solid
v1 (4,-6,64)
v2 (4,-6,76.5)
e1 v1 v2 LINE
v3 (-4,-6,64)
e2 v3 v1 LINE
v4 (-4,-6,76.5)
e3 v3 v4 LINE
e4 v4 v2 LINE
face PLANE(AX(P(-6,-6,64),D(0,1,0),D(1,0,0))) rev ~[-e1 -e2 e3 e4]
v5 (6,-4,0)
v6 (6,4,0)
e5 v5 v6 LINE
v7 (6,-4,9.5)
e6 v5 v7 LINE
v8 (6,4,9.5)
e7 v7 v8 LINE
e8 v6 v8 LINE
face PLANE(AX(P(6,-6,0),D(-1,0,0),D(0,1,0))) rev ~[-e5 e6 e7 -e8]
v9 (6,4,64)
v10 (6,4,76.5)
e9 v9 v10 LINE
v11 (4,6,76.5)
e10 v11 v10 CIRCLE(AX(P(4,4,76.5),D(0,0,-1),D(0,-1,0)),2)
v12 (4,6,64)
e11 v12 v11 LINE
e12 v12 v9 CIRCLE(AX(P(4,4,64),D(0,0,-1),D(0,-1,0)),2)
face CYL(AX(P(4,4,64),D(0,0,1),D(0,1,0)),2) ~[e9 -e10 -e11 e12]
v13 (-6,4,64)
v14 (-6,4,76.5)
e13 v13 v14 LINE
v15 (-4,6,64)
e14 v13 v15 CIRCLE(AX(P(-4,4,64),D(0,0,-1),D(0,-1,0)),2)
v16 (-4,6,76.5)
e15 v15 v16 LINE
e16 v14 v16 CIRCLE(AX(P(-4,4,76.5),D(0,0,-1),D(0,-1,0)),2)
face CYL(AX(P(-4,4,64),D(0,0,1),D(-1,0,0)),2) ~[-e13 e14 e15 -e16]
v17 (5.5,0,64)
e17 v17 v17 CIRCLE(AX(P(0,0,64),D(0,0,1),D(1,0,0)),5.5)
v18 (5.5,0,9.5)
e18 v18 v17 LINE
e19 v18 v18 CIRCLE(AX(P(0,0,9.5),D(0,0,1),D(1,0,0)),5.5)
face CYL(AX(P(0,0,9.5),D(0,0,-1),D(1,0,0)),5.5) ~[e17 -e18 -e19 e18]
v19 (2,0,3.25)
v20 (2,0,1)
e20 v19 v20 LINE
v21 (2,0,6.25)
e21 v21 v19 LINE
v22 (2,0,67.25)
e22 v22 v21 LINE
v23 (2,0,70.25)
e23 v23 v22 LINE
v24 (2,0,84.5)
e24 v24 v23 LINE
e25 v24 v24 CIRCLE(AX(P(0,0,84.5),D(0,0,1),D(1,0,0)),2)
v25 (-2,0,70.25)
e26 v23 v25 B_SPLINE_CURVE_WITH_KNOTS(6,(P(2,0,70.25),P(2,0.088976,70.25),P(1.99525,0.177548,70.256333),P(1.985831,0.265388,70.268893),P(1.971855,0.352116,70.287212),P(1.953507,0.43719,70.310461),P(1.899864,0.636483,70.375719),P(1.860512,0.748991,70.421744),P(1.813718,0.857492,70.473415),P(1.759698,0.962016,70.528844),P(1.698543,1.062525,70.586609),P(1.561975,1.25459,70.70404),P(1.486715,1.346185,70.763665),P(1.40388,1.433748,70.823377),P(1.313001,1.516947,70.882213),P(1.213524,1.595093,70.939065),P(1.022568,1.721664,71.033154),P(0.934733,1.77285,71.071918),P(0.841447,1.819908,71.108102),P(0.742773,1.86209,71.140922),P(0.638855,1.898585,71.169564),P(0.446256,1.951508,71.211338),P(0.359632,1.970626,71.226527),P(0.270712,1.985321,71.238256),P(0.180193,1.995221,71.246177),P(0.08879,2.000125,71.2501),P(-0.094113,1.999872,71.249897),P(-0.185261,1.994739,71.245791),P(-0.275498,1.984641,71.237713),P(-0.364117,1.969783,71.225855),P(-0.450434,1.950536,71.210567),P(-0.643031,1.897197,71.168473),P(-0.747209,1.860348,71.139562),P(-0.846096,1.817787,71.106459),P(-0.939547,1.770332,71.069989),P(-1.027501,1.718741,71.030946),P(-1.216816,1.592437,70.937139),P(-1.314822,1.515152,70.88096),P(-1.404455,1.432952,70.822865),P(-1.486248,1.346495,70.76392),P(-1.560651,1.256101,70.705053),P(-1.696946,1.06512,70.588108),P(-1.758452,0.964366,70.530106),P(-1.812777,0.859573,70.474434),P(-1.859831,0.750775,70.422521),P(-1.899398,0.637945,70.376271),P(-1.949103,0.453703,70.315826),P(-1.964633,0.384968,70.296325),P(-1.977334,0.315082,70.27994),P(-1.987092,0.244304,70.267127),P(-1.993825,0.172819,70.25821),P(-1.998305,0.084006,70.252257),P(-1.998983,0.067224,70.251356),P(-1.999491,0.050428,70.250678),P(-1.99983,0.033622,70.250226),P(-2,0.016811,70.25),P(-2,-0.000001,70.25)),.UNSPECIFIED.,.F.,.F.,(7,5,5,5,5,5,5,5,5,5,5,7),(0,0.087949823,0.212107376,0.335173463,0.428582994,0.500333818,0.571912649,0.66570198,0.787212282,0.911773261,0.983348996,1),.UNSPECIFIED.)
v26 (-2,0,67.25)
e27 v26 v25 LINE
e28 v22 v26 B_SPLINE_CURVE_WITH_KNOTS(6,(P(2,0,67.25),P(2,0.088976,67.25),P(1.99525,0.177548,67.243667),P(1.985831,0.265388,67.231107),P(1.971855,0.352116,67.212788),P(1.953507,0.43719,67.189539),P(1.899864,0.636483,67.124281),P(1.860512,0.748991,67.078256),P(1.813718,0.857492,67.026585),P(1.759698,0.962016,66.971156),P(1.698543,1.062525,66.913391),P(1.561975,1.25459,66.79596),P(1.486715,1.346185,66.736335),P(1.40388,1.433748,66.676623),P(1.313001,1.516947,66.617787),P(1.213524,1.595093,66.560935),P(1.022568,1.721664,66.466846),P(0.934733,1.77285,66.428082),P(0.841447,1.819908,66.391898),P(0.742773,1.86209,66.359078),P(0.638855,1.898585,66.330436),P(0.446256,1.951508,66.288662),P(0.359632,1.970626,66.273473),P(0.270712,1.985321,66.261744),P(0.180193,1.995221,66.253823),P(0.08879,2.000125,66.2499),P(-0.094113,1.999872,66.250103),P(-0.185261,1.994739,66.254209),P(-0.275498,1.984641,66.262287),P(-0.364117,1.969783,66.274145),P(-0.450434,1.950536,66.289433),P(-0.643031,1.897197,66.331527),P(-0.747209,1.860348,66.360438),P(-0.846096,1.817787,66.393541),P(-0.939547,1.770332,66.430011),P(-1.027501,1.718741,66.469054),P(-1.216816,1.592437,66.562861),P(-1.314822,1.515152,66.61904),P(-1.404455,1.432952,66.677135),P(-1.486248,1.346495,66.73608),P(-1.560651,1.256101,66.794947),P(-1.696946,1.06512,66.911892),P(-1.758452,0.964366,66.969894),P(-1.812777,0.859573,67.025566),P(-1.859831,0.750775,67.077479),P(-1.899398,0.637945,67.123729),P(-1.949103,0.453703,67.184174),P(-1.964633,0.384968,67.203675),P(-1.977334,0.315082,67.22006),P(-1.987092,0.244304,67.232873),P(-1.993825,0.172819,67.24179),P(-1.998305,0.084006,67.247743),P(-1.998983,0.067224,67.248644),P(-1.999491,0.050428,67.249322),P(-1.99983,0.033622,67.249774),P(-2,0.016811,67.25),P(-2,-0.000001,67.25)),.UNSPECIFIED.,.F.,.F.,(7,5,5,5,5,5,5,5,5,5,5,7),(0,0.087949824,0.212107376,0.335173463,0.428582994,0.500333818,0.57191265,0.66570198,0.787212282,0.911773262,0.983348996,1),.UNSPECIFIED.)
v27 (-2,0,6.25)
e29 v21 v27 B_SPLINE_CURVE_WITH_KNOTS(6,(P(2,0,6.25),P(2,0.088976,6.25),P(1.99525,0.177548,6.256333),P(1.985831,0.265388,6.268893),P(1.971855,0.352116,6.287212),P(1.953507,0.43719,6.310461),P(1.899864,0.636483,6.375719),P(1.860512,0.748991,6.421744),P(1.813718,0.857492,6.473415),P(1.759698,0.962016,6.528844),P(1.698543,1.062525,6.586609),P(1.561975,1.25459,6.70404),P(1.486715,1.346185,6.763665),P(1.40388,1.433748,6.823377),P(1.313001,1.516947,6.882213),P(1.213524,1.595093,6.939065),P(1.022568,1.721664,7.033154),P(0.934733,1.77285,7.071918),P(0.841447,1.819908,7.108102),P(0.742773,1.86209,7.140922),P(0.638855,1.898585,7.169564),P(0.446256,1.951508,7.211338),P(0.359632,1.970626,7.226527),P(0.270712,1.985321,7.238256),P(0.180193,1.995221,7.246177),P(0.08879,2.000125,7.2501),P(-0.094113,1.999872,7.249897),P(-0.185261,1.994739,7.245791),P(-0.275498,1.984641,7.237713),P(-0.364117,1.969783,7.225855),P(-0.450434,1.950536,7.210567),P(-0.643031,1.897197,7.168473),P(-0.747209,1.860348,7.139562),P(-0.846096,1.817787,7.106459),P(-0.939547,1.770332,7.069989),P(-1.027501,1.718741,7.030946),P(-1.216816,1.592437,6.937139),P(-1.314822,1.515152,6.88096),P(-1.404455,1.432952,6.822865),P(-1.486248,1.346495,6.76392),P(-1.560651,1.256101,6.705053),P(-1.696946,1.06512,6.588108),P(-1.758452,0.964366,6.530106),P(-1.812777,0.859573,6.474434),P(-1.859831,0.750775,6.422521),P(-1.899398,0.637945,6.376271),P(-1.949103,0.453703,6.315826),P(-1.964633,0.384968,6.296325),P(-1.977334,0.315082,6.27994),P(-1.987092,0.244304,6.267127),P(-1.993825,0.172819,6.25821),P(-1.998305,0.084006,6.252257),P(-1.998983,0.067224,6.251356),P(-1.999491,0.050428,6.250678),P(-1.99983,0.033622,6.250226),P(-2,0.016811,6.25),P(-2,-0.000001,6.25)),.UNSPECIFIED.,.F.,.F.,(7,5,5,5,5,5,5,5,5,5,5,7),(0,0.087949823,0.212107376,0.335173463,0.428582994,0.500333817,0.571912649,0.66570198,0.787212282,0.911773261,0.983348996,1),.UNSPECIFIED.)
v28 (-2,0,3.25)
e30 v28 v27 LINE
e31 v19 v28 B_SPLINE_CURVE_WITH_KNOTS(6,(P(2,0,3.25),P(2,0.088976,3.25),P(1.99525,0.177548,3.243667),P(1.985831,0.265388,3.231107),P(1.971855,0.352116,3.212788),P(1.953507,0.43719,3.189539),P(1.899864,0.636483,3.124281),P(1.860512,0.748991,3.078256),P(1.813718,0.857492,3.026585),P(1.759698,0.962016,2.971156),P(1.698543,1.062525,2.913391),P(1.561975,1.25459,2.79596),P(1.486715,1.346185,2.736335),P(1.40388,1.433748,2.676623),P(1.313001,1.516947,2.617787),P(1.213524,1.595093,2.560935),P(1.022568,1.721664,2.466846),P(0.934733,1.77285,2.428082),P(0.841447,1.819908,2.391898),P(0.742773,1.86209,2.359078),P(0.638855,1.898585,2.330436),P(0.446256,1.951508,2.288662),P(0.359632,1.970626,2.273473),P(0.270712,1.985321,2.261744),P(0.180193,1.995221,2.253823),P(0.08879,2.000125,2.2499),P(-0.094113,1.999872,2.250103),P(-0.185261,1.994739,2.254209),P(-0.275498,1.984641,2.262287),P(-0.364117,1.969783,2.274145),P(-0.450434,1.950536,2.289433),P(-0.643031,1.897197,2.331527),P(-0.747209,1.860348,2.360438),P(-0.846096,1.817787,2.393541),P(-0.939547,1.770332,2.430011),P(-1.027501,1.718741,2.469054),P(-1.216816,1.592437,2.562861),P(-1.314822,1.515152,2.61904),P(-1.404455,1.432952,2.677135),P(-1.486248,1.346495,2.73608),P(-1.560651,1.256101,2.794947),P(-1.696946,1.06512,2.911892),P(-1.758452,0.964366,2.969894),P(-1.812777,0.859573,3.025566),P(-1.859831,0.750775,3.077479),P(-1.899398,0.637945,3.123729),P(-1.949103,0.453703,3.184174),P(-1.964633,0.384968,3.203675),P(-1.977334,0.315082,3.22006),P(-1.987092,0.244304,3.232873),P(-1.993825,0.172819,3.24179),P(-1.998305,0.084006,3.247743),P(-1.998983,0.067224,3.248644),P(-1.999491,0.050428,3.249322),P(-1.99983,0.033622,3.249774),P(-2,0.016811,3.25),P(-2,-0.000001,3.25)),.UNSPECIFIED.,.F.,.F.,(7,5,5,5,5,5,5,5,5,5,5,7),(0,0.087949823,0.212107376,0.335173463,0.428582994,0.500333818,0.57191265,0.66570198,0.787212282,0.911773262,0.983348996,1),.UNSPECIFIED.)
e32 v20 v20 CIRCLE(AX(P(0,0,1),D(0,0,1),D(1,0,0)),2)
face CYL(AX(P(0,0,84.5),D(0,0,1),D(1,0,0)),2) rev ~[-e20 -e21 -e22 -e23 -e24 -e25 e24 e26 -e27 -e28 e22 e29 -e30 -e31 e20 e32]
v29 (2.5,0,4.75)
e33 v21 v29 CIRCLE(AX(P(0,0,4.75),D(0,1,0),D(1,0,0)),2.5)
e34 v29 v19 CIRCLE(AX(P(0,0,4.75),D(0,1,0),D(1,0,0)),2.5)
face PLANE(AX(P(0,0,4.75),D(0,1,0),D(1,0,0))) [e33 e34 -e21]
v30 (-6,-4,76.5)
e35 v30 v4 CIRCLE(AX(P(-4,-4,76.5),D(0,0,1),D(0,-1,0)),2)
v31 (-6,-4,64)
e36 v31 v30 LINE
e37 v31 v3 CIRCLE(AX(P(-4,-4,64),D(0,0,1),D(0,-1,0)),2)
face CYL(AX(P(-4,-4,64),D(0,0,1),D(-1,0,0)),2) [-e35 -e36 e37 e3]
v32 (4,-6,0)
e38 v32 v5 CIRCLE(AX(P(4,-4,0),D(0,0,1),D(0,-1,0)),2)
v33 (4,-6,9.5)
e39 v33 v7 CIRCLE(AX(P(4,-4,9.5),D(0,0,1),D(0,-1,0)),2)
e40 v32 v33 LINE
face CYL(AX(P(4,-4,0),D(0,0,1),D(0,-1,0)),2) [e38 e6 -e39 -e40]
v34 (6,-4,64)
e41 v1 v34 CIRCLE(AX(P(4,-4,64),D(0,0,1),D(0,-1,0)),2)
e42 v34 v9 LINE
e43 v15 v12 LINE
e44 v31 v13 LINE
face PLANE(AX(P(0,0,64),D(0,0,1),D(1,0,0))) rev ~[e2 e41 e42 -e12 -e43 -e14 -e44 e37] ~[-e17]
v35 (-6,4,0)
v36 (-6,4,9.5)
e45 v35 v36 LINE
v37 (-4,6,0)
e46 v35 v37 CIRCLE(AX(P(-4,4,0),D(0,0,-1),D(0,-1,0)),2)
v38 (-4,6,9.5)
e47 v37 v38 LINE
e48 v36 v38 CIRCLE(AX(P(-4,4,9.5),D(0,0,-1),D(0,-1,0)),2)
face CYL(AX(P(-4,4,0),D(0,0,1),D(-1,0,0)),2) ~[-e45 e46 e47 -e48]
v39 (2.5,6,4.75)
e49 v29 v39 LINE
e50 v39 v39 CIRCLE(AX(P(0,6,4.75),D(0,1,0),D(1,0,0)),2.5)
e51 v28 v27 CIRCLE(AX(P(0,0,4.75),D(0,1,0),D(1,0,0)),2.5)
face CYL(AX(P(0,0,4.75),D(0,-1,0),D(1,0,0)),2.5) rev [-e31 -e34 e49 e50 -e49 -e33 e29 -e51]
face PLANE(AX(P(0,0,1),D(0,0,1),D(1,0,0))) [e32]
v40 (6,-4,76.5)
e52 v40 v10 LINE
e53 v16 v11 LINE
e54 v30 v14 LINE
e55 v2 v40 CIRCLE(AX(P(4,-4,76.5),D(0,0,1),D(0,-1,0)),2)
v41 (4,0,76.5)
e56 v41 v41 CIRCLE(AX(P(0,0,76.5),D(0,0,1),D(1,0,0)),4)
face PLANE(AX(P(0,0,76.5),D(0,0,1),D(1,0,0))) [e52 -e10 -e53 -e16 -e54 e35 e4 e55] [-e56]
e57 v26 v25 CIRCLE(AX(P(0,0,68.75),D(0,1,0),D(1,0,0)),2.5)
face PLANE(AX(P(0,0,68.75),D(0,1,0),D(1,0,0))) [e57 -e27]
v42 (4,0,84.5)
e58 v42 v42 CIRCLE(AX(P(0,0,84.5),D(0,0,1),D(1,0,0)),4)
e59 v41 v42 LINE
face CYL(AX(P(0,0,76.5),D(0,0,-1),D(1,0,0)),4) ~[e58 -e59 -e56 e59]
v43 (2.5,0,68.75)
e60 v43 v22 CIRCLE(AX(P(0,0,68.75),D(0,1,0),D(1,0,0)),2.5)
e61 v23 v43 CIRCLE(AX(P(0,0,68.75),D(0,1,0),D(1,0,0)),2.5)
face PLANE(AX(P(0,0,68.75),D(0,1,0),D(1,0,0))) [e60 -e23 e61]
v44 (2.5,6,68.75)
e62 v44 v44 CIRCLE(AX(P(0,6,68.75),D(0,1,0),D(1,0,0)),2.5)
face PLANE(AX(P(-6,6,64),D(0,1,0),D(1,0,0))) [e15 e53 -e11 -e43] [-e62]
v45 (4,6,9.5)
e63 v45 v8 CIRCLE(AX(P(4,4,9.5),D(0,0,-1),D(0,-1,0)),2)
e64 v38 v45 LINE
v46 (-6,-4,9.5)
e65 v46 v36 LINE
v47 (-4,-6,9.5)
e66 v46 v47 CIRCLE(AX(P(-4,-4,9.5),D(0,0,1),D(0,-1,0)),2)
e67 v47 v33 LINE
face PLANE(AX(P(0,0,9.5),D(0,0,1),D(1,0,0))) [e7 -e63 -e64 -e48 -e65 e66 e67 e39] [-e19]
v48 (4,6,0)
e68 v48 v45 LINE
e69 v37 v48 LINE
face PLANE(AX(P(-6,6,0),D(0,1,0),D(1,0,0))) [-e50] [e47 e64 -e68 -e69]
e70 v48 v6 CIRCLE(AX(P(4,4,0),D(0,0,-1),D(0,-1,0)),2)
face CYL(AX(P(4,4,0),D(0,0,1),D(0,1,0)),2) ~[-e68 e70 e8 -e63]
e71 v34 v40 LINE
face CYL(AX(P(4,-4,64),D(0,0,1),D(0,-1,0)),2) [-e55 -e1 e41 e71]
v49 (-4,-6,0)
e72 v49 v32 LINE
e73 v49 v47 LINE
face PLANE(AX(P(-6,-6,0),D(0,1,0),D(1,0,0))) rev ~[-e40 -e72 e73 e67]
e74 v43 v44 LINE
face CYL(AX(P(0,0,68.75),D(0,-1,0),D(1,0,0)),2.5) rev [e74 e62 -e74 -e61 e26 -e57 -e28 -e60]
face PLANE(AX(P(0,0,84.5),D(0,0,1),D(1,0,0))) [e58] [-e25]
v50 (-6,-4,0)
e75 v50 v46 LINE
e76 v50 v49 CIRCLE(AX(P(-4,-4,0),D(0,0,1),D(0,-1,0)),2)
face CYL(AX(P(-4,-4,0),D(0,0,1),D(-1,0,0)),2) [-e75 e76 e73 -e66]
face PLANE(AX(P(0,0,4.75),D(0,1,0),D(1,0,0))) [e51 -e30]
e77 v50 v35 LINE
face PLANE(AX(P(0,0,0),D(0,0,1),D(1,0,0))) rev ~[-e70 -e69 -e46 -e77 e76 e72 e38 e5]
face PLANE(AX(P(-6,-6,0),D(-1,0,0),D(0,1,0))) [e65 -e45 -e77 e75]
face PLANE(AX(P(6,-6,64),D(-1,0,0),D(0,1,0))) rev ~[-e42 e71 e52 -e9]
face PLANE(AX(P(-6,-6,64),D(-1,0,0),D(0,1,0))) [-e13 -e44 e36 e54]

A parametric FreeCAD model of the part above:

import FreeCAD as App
import Part
import Sketcher


def edges_at(feature, points):
    """Names of the edges that pass closest to the given points."""
    edges = feature.Shape.Edges
    near = lambda p: min(range(len(edges)), key=lambda i: edges[i].distToShape(Part.Vertex(*p))[0])
    return sorted({f"Edge{near(p) + 1}" for p in points})

doc = App.newDocument("Part")
body = doc.addObject("PartDesign::Body", "Body")

sketch1 = doc.addObject("Sketcher::SketchObject", "Sketch")
body.addObject(sketch1)
sketch1.AttachmentSupport = (doc.XY_Plane, [""])
sketch1.MapMode = "FlatFace"
sketch1.addGeometry([
    Part.LineSegment(App.Vector(-6, 6, 0), App.Vector(-6, -6, 0)),
    Part.LineSegment(App.Vector(-6, -6, 0), App.Vector(6, -6, 0)),
    Part.LineSegment(App.Vector(6, -6, 0), App.Vector(6, 6, 0)),
    Part.LineSegment(App.Vector(6, 6, 0), App.Vector(-6, 6, 0)),
], False)
sketch1.addConstraint([
    Sketcher.Constraint("Coincident", 0, 2, 1, 1),
    Sketcher.Constraint("Coincident", 1, 2, 2, 1),
    Sketcher.Constraint("Coincident", 2, 2, 3, 1),
    Sketcher.Constraint("Coincident", 3, 2, 0, 1),
    Sketcher.Constraint("Vertical", 0),
    Sketcher.Constraint("Horizontal", 1),
    Sketcher.Constraint("Vertical", 2),
    Sketcher.Constraint("Horizontal", 3),
    Sketcher.Constraint("Symmetric", 0, 2, 2, 2, -1, 1),
    Sketcher.Constraint("Equal", 3, 0),
    Sketcher.Constraint("DistanceX", 1, 1, 1, 2, 12.0),
])
pad1 = doc.addObject("PartDesign::Pad", "Pad")
body.addObject(pad1)
pad1.Profile = sketch1
pad1.Length = 9.5

sketch2 = doc.addObject("Sketcher::SketchObject", "Sketch001")
body.addObject(sketch2)
sketch2.AttachmentSupport = (doc.XY_Plane, [""])
sketch2.MapMode = "FlatFace"
sketch2.AttachmentOffset = App.Placement(App.Vector(0, 0, 9.5), App.Rotation())
sketch2.addGeometry(Part.Circle(App.Vector(0, 0, 0), App.Vector(0, 0, 1), 5.5), False)
sketch2.addConstraint([
    Sketcher.Constraint("Coincident", 0, 3, -1, 1),
    Sketcher.Constraint("Diameter", 0, 11.0),
])
pad2 = doc.addObject("PartDesign::Pad", "Pad001")
body.addObject(pad2)
pad2.Profile = sketch2
pad2.Length = 54.5

sketch3 = doc.addObject("Sketcher::SketchObject", "Sketch002")
body.addObject(sketch3)
sketch3.AttachmentSupport = (doc.XY_Plane, [""])
sketch3.MapMode = "FlatFace"
sketch3.AttachmentOffset = App.Placement(App.Vector(0, 0, 64), App.Rotation())
sketch3.addGeometry([
    Part.LineSegment(App.Vector(-6, 6, 0), App.Vector(-6, -6, 0)),
    Part.LineSegment(App.Vector(-6, -6, 0), App.Vector(6, -6, 0)),
    Part.LineSegment(App.Vector(6, -6, 0), App.Vector(6, 6, 0)),
    Part.LineSegment(App.Vector(6, 6, 0), App.Vector(-6, 6, 0)),
], False)
sketch3.addConstraint([
    Sketcher.Constraint("Coincident", 0, 2, 1, 1),
    Sketcher.Constraint("Coincident", 1, 2, 2, 1),
    Sketcher.Constraint("Coincident", 2, 2, 3, 1),
    Sketcher.Constraint("Coincident", 3, 2, 0, 1),
    Sketcher.Constraint("Vertical", 0),
    Sketcher.Constraint("Horizontal", 1),
    Sketcher.Constraint("Vertical", 2),
    Sketcher.Constraint("Horizontal", 3),
    Sketcher.Constraint("Symmetric", 0, 2, 2, 2, -1, 1),
    Sketcher.Constraint("Equal", 3, 0),
    Sketcher.Constraint("DistanceX", 1, 1, 1, 2, 12.0),
])
pad3 = doc.addObject("PartDesign::Pad", "Pad002")
body.addObject(pad3)
pad3.Profile = sketch3
pad3.Length = 12.5

sketch4 = doc.addObject("Sketcher::SketchObject", "Sketch003")
body.addObject(sketch4)
sketch4.AttachmentSupport = (doc.XY_Plane, [""])
sketch4.MapMode = "FlatFace"
sketch4.AttachmentOffset = App.Placement(App.Vector(0, 0, 76.5), App.Rotation())
sketch4.addGeometry(Part.Circle(App.Vector(0, 0, 0), App.Vector(0, 0, 1), 4), False)
sketch4.addConstraint([
    Sketcher.Constraint("Coincident", 0, 3, -1, 1),
    Sketcher.Constraint("Diameter", 0, 8.0),
])
pad4 = doc.addObject("PartDesign::Pad", "Pad003")
body.addObject(pad4)
pad4.Profile = sketch4
pad4.Length = 8

sketch5 = doc.addObject("Sketcher::SketchObject", "Sketch004")
body.addObject(sketch5)
sketch5.AttachmentSupport = (doc.XY_Plane, [""])
sketch5.MapMode = "FlatFace"
sketch5.AttachmentOffset = App.Placement(App.Vector(0, 0, 84.5), App.Rotation())
sketch5.addGeometry(Part.Circle(App.Vector(0, 0, 0), App.Vector(0, 0, 1), 2), False)
sketch5.addConstraint([
    Sketcher.Constraint("Coincident", 0, 3, -1, 1),
    Sketcher.Constraint("Diameter", 0, 4.0),
])
pocket1 = doc.addObject("PartDesign::Pocket", "Pocket")
body.addObject(pocket1)
pocket1.Profile = sketch5
pocket1.Length = 83.5

sketch6 = doc.addObject("Sketcher::SketchObject", "Sketch005")
body.addObject(sketch6)
sketch6.AttachmentSupport = (doc.XZ_Plane, [""])
sketch6.MapMode = "FlatFace"
sketch6.addGeometry([
    Part.Circle(App.Vector(0, 4.75, 0), App.Vector(0, 0, 1), 2.5),
    Part.Circle(App.Vector(0, 68.75, 0), App.Vector(0, 0, 1), 2.5),
], False)
sketch6.addConstraint([
    Sketcher.Constraint("Equal", 0, 1),
    Sketcher.Constraint("PointOnObject", 0, 3, -2),
    Sketcher.Constraint("PointOnObject", 1, 3, -2),
    Sketcher.Constraint("Diameter", 0, 5.0),
    Sketcher.Constraint("DistanceY", 0, 3, 1, 3, 64.0),
    Sketcher.Constraint("DistanceY", -1, 1, 0, 3, 4.75),
])
pocket2 = doc.addObject("PartDesign::Pocket", "Pocket001")
body.addObject(pocket2)
pocket2.Profile = sketch6
pocket2.Length = 6
doc.recompute()

fillet = doc.addObject("PartDesign::Fillet", "Fillet")
body.addObject(fillet)
fillet.Base = (pocket2, edges_at(pocket2, [
    (6, -6, 70.25),
    (6, 6, 70.25),
    (-6, 6, 70.25),
    (-6, -6, 70.25),
    (6, -6, 4.75),
    (-6, -6, 4.75),
    (-6, 6, 4.75),
    (6, 6, 4.75),
]))
fillet.Radius = 2

doc.recompute()
